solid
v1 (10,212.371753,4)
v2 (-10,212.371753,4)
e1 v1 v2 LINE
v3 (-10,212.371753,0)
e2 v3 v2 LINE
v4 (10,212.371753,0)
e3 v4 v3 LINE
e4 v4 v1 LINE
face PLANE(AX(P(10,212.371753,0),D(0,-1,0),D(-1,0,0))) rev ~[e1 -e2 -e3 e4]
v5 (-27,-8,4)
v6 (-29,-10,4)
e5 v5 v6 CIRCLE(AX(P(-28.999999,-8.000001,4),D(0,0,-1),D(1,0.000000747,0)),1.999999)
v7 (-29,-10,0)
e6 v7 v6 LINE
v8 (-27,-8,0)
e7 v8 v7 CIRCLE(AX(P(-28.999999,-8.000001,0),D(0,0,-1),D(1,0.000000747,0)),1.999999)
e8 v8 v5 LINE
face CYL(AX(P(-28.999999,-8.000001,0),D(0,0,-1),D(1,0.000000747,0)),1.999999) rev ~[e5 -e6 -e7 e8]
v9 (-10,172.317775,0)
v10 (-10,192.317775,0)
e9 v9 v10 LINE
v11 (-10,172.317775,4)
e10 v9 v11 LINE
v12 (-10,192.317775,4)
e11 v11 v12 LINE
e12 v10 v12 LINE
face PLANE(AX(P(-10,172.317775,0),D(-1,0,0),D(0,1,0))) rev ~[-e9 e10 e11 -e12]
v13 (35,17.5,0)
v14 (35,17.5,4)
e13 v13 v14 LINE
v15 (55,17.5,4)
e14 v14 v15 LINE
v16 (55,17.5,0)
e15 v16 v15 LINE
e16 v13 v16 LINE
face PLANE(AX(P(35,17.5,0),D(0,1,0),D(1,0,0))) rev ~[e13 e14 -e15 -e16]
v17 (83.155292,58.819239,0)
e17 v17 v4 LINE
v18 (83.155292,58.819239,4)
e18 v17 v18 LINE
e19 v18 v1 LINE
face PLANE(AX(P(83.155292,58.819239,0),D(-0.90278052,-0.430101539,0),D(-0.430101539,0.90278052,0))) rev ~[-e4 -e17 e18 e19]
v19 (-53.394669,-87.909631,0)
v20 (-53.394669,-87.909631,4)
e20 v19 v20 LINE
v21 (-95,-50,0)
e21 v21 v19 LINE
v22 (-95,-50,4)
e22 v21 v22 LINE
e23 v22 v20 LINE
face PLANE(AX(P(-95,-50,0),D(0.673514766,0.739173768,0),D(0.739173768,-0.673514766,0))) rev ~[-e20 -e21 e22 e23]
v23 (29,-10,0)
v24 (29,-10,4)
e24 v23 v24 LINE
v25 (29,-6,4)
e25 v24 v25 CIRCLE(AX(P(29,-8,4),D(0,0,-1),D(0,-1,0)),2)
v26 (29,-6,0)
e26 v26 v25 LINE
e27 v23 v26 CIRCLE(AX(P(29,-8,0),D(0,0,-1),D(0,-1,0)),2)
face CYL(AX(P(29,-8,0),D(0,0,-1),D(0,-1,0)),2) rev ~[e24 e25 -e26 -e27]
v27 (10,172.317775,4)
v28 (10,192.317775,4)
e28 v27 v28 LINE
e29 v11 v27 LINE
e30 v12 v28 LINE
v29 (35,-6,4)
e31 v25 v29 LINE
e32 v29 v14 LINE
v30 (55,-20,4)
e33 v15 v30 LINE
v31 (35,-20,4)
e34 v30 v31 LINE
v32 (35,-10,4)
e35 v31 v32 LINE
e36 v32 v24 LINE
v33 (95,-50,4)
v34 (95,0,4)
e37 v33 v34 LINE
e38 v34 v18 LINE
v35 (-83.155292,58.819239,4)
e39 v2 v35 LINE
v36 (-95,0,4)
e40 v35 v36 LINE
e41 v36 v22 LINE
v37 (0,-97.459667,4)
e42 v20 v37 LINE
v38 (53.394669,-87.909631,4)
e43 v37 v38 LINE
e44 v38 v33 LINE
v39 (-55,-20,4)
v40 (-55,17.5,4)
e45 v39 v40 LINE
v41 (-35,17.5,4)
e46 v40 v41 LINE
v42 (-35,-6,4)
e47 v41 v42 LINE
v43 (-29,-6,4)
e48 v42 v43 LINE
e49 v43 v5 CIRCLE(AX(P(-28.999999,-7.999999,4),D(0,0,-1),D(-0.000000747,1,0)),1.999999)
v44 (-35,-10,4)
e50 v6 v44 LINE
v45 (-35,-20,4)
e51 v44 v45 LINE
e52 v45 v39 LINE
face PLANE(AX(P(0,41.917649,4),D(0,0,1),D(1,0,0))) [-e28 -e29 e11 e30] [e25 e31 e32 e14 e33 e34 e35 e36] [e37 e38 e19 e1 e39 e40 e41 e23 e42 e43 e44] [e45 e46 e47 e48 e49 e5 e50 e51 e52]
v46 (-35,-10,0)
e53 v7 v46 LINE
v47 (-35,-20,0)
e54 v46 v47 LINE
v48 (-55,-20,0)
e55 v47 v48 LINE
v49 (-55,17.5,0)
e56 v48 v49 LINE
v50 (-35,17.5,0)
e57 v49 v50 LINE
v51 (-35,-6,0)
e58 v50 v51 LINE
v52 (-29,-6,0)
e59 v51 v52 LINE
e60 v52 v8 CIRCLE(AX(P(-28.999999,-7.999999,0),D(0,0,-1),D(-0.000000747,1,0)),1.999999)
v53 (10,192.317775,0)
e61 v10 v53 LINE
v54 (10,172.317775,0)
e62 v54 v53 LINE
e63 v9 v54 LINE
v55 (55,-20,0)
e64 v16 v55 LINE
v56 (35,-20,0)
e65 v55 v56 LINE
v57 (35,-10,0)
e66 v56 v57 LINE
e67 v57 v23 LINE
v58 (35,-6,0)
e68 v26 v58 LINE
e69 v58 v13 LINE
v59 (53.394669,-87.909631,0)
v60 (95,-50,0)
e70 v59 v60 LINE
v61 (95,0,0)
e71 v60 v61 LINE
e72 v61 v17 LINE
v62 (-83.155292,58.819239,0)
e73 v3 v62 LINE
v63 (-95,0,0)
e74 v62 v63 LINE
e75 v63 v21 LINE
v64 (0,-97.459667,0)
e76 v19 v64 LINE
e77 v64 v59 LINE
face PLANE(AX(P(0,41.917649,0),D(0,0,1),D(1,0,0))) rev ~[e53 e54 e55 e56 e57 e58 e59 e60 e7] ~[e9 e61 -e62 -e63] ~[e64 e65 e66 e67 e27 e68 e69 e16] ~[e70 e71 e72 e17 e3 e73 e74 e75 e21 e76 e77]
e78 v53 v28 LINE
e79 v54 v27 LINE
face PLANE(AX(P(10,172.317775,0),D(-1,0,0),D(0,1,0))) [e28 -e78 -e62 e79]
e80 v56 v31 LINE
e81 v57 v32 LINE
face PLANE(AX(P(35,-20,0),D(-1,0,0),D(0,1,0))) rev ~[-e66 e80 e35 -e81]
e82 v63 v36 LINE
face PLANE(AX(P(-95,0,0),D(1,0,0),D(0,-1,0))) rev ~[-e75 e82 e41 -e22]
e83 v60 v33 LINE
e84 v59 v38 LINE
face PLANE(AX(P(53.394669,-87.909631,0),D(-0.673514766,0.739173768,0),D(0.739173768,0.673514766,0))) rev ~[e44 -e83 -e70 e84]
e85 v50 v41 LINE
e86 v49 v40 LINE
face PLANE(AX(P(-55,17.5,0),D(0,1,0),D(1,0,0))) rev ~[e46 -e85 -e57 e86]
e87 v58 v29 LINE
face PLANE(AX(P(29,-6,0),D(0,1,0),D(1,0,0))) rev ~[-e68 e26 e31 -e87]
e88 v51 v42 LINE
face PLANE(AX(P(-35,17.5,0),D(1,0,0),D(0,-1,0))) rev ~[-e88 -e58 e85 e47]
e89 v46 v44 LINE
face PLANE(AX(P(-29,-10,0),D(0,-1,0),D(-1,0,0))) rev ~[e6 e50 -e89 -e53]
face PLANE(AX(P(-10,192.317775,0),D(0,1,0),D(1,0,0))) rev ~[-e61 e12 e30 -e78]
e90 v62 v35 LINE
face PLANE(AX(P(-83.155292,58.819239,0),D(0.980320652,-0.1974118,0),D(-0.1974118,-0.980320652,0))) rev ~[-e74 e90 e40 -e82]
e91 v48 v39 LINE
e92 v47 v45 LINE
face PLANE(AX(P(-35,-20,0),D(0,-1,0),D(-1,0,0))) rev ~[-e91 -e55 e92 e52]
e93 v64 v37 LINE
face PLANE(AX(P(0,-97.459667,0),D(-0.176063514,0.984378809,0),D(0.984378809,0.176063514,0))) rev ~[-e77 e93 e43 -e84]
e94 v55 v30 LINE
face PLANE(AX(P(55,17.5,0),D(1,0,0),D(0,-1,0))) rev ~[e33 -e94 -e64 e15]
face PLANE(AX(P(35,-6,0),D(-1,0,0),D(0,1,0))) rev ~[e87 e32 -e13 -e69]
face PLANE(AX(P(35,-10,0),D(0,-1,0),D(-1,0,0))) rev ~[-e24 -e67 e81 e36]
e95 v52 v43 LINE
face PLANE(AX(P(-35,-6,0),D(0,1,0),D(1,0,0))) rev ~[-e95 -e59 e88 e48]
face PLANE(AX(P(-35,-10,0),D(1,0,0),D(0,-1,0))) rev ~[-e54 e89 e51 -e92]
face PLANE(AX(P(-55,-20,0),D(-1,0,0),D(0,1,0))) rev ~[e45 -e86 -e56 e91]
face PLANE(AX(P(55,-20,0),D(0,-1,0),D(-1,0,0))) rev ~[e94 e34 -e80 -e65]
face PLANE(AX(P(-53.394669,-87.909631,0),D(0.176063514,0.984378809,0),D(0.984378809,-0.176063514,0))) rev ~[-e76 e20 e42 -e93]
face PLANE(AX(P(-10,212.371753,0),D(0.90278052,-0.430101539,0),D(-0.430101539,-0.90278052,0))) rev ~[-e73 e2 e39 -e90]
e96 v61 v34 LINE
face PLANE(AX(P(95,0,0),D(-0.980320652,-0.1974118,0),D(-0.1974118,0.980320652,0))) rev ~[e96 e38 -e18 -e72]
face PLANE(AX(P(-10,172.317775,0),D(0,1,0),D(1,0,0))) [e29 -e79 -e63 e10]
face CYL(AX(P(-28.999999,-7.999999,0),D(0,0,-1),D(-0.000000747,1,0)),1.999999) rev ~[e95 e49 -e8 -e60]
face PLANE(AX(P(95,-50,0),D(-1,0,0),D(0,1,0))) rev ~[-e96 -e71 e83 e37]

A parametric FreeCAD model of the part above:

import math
import FreeCAD as App
import Part
import Sketcher


def add_polygon(sketch, points):
    """Adds a closed chain of lines whose ends are joined by coincident constraints."""
    first, n = sketch.GeometryCount, len(points)
    for a, b in zip(points, points[1:] + points[:1]):
        sketch.addGeometry(Part.LineSegment(App.Vector(*a, 0), App.Vector(*b, 0)), False)
    for i in range(n):
        sketch.addConstraint(Sketcher.Constraint("Coincident", first + i, 2, first + (i + 1) % n, 1))

doc = App.newDocument("Part")
body = doc.addObject("PartDesign::Body", "Body")

sketch1 = body.newObject("Sketcher::SketchObject", "Sketch")
sketch1.AttachmentSupport = (doc.getObject("XY_Plane"), [""])
sketch1.MapMode = "FlatFace"
add_polygon(sketch1, [(-83.2, 58.8), (-95, 0), (-95, -50), (-53.4, -87.9), (0, -97.5), (53.4, -87.9), (95, -50), (95, 0), (83.2, 58.8), (10, 212.4), (-10, 212.4)])
sketch1.addGeometry(Part.LineSegment(App.Vector(-35, -20, 0), App.Vector(-55, -20, 0)), False)
sketch1.addGeometry(Part.LineSegment(App.Vector(-55, -20, 0), App.Vector(-55, 17.5, 0)), False)
sketch1.addGeometry(Part.LineSegment(App.Vector(-55, 17.5, 0), App.Vector(-35, 17.5, 0)), False)
sketch1.addGeometry(Part.LineSegment(App.Vector(-35, 17.5, 0), App.Vector(-35, -6, 0)), False)
sketch1.addGeometry(Part.LineSegment(App.Vector(-35, -6, 0), App.Vector(-29, -6, 0)), False)
sketch1.addGeometry(Part.ArcOfCircle(Part.Circle(App.Vector(-29, -8, 0), App.Vector(0, 0, 1), 2), math.radians(0), math.radians(90)), False)
sketch1.addGeometry(Part.ArcOfCircle(Part.Circle(App.Vector(-29, -8, 0), App.Vector(0, 0, 1), 2), math.radians(-90), math.radians(0)), False)
sketch1.addGeometry(Part.LineSegment(App.Vector(-29, -10, 0), App.Vector(-35, -10, 0)), False)
sketch1.addGeometry(Part.LineSegment(App.Vector(-35, -10, 0), App.Vector(-35, -20, 0)), False)
sketch1.addGeometry(Part.LineSegment(App.Vector(29, -6, 0), App.Vector(35, -6, 0)), False)
sketch1.addGeometry(Part.LineSegment(App.Vector(35, -6, 0), App.Vector(35, 17.5, 0)), False)
sketch1.addGeometry(Part.LineSegment(App.Vector(35, 17.5, 0), App.Vector(55, 17.5, 0)), False)
sketch1.addGeometry(Part.LineSegment(App.Vector(55, 17.5, 0), App.Vector(55, -20, 0)), False)
sketch1.addGeometry(Part.LineSegment(App.Vector(55, -20, 0), App.Vector(35, -20, 0)), False)
sketch1.addGeometry(Part.LineSegment(App.Vector(35, -20, 0), App.Vector(35, -10, 0)), False)
sketch1.addGeometry(Part.LineSegment(App.Vector(35, -10, 0), App.Vector(29, -10, 0)), False)
sketch1.addGeometry(Part.ArcOfCircle(Part.Circle(App.Vector(29, -8, 0), App.Vector(0, 0, 1), 2), math.radians(90), math.radians(270)), False)
add_polygon(sketch1, [(10, 172.3), (-10, 172.3), (-10, 192.3), (10, 192.3)])
sketch1.addConstraint(Sketcher.Constraint("Coincident", 11, 2, 12, 1))
sketch1.addConstraint(Sketcher.Constraint("Coincident", 12, 2, 13, 1))
sketch1.addConstraint(Sketcher.Constraint("Coincident", 13, 2, 14, 1))
sketch1.addConstraint(Sketcher.Constraint("Coincident", 14, 2, 15, 1))
sketch1.addConstraint(Sketcher.Constraint("Tangent", 15, 2, 16, 2))
sketch1.addConstraint(Sketcher.Constraint("Tangent", 16, 1, 17, 2))
sketch1.addConstraint(Sketcher.Constraint("Tangent", 17, 1, 18, 1))
sketch1.addConstraint(Sketcher.Constraint("Coincident", 18, 2, 19, 1))
sketch1.addConstraint(Sketcher.Constraint("Coincident", 19, 2, 11, 1))
sketch1.addConstraint(Sketcher.Constraint("Coincident", 20, 2, 21, 1))
sketch1.addConstraint(Sketcher.Constraint("Coincident", 21, 2, 22, 1))
sketch1.addConstraint(Sketcher.Constraint("Coincident", 22, 2, 23, 1))
sketch1.addConstraint(Sketcher.Constraint("Coincident", 23, 2, 24, 1))
sketch1.addConstraint(Sketcher.Constraint("Coincident", 24, 2, 25, 1))
sketch1.addConstraint(Sketcher.Constraint("Coincident", 25, 2, 26, 1))
sketch1.addConstraint(Sketcher.Constraint("Tangent", 26, 2, 27, 2))
sketch1.addConstraint(Sketcher.Constraint("Tangent", 27, 1, 20, 1))
sketch1.addConstraint(Sketcher.Constraint("Vertical", 1))
sketch1.addConstraint(Sketcher.Constraint("Vertical", 6))
sketch1.addConstraint(Sketcher.Constraint("Horizontal", 9))
sketch1.addConstraint(Sketcher.Constraint("Horizontal", 11))
sketch1.addConstraint(Sketcher.Constraint("Vertical", 12))
sketch1.addConstraint(Sketcher.Constraint("Horizontal", 13))
sketch1.addConstraint(Sketcher.Constraint("Vertical", 14))
sketch1.addConstraint(Sketcher.Constraint("Horizontal", 15))
sketch1.addConstraint(Sketcher.Constraint("Horizontal", 18))
sketch1.addConstraint(Sketcher.Constraint("Vertical", 19))
sketch1.addConstraint(Sketcher.Constraint("Horizontal", 20))
sketch1.addConstraint(Sketcher.Constraint("Vertical", 21))
sketch1.addConstraint(Sketcher.Constraint("Horizontal", 22))
sketch1.addConstraint(Sketcher.Constraint("Vertical", 23))
sketch1.addConstraint(Sketcher.Constraint("Horizontal", 24))
sketch1.addConstraint(Sketcher.Constraint("Vertical", 25))
sketch1.addConstraint(Sketcher.Constraint("Horizontal", 26))
sketch1.addConstraint(Sketcher.Constraint("Horizontal", 28))
sketch1.addConstraint(Sketcher.Constraint("Vertical", 29))
sketch1.addConstraint(Sketcher.Constraint("Horizontal", 30))
sketch1.addConstraint(Sketcher.Constraint("Vertical", 31))
sketch1.addConstraint(Sketcher.Constraint("Equal", 16, 17))
sketch1.addConstraint(Sketcher.Constraint("Equal", 17, 27))
sketch1.addConstraint(Sketcher.Constraint("Symmetric", 0, 2, 6, 2, -1, 1))
sketch1.addConstraint(Sketcher.Constraint("Symmetric", 16, 3, 27, 3, -2))
sketch1.addConstraint(Sketcher.Constraint("Symmetric", 2, 2, 4, 2, -2))
sketch1.addConstraint(Sketcher.Constraint("Symmetric", 7, 2, 10, 2, -2))
sketch1.addConstraint(Sketcher.Constraint("Symmetric", 13, 2, 21, 2, -2))
sketch1.addConstraint(Sketcher.Constraint("Symmetric", 11, 2, 23, 2, -2))
sketch1.addConstraint(Sketcher.Constraint("PointOnObject", 0, 2, -1))
sketch1.addConstraint(Sketcher.Constraint("PointOnObject", 3, 2, -2))
sketch1.addConstraint(Sketcher.Constraint("Horizontal", 1, 2, 5, 2))
sketch1.addConstraint(Sketcher.Constraint("Horizontal", 27, 3, 16, 1))
sketch1.addConstraint(Sketcher.Constraint("Vertical", 14, 2, 18, 2))
sketch1.addConstraint(Sketcher.Constraint("Vertical", 21, 2, 24, 2))
sketch1.addConstraint(Sketcher.Constraint("Vertical", 9, 2, 28, 2))
sketch1.addConstraint(Sketcher.Constraint("Vertical", 8, 2, 30, 2))
sketch1.addConstraint(Sketcher.Constraint("Equal", 9, 11))
sketch1.addConstraint(Sketcher.Constraint("Equal", 30, 29))
sketch1.addConstraint(Sketcher.Constraint("Equal", 8, 10))
sketch1.addConstraint(Sketcher.Constraint("Radius", 16, 1.999999))
sketch1.addConstraint(Sketcher.Constraint("DistanceX", 9, 2, 9, 1, 20.0))
sketch1.addConstraint(Sketcher.Constraint("DistanceX", 15, 1, 15, 2, 6.0))
sketch1.addConstraint(Sketcher.Constraint("DistanceY", 1, 2, 1, 1, 50.0))
sketch1.addConstraint(Sketcher.Constraint("DistanceY", 19, 2, 19, 1, 10.0))
sketch1.addConstraint(Sketcher.Constraint("Distance", 0, 60.0))
sketch1.addConstraint(Sketcher.Constraint("DistanceY", 12, 1, 12, 2, 37.5))
sketch1.addConstraint(Sketcher.Constraint("DistanceX", 16, 3, -1, 1, 28.999999))
sketch1.addConstraint(Sketcher.Constraint("DistanceY", 16, 3, -1, 1, 7.999999))
sketch1.addConstraint(Sketcher.Constraint("DistanceX", 0, 2, -1, 1, 95.0))
sketch1.addConstraint(Sketcher.Constraint("DistanceX", 2, 2, -1, 1, 53.394669))
sketch1.addConstraint(Sketcher.Constraint("DistanceY", 2, 2, -1, 1, 87.909631))
sketch1.addConstraint(Sketcher.Constraint("DistanceY", -1, 1, 7, 2, 58.819239))
sketch1.addConstraint(Sketcher.Constraint("DistanceY", 3, 2, 16, 3, 89.459668))
sketch1.addConstraint(Sketcher.Constraint("DistanceY", 16, 3, 8, 2, 220.371752))
sketch1.addConstraint(Sketcher.Constraint("DistanceY", 29, 2, 9, 2, 20.053978))
pad1 = body.newObject("PartDesign::Pad", "Pad")
pad1.Profile = sketch1
pad1.Length = 4

doc.recompute()
